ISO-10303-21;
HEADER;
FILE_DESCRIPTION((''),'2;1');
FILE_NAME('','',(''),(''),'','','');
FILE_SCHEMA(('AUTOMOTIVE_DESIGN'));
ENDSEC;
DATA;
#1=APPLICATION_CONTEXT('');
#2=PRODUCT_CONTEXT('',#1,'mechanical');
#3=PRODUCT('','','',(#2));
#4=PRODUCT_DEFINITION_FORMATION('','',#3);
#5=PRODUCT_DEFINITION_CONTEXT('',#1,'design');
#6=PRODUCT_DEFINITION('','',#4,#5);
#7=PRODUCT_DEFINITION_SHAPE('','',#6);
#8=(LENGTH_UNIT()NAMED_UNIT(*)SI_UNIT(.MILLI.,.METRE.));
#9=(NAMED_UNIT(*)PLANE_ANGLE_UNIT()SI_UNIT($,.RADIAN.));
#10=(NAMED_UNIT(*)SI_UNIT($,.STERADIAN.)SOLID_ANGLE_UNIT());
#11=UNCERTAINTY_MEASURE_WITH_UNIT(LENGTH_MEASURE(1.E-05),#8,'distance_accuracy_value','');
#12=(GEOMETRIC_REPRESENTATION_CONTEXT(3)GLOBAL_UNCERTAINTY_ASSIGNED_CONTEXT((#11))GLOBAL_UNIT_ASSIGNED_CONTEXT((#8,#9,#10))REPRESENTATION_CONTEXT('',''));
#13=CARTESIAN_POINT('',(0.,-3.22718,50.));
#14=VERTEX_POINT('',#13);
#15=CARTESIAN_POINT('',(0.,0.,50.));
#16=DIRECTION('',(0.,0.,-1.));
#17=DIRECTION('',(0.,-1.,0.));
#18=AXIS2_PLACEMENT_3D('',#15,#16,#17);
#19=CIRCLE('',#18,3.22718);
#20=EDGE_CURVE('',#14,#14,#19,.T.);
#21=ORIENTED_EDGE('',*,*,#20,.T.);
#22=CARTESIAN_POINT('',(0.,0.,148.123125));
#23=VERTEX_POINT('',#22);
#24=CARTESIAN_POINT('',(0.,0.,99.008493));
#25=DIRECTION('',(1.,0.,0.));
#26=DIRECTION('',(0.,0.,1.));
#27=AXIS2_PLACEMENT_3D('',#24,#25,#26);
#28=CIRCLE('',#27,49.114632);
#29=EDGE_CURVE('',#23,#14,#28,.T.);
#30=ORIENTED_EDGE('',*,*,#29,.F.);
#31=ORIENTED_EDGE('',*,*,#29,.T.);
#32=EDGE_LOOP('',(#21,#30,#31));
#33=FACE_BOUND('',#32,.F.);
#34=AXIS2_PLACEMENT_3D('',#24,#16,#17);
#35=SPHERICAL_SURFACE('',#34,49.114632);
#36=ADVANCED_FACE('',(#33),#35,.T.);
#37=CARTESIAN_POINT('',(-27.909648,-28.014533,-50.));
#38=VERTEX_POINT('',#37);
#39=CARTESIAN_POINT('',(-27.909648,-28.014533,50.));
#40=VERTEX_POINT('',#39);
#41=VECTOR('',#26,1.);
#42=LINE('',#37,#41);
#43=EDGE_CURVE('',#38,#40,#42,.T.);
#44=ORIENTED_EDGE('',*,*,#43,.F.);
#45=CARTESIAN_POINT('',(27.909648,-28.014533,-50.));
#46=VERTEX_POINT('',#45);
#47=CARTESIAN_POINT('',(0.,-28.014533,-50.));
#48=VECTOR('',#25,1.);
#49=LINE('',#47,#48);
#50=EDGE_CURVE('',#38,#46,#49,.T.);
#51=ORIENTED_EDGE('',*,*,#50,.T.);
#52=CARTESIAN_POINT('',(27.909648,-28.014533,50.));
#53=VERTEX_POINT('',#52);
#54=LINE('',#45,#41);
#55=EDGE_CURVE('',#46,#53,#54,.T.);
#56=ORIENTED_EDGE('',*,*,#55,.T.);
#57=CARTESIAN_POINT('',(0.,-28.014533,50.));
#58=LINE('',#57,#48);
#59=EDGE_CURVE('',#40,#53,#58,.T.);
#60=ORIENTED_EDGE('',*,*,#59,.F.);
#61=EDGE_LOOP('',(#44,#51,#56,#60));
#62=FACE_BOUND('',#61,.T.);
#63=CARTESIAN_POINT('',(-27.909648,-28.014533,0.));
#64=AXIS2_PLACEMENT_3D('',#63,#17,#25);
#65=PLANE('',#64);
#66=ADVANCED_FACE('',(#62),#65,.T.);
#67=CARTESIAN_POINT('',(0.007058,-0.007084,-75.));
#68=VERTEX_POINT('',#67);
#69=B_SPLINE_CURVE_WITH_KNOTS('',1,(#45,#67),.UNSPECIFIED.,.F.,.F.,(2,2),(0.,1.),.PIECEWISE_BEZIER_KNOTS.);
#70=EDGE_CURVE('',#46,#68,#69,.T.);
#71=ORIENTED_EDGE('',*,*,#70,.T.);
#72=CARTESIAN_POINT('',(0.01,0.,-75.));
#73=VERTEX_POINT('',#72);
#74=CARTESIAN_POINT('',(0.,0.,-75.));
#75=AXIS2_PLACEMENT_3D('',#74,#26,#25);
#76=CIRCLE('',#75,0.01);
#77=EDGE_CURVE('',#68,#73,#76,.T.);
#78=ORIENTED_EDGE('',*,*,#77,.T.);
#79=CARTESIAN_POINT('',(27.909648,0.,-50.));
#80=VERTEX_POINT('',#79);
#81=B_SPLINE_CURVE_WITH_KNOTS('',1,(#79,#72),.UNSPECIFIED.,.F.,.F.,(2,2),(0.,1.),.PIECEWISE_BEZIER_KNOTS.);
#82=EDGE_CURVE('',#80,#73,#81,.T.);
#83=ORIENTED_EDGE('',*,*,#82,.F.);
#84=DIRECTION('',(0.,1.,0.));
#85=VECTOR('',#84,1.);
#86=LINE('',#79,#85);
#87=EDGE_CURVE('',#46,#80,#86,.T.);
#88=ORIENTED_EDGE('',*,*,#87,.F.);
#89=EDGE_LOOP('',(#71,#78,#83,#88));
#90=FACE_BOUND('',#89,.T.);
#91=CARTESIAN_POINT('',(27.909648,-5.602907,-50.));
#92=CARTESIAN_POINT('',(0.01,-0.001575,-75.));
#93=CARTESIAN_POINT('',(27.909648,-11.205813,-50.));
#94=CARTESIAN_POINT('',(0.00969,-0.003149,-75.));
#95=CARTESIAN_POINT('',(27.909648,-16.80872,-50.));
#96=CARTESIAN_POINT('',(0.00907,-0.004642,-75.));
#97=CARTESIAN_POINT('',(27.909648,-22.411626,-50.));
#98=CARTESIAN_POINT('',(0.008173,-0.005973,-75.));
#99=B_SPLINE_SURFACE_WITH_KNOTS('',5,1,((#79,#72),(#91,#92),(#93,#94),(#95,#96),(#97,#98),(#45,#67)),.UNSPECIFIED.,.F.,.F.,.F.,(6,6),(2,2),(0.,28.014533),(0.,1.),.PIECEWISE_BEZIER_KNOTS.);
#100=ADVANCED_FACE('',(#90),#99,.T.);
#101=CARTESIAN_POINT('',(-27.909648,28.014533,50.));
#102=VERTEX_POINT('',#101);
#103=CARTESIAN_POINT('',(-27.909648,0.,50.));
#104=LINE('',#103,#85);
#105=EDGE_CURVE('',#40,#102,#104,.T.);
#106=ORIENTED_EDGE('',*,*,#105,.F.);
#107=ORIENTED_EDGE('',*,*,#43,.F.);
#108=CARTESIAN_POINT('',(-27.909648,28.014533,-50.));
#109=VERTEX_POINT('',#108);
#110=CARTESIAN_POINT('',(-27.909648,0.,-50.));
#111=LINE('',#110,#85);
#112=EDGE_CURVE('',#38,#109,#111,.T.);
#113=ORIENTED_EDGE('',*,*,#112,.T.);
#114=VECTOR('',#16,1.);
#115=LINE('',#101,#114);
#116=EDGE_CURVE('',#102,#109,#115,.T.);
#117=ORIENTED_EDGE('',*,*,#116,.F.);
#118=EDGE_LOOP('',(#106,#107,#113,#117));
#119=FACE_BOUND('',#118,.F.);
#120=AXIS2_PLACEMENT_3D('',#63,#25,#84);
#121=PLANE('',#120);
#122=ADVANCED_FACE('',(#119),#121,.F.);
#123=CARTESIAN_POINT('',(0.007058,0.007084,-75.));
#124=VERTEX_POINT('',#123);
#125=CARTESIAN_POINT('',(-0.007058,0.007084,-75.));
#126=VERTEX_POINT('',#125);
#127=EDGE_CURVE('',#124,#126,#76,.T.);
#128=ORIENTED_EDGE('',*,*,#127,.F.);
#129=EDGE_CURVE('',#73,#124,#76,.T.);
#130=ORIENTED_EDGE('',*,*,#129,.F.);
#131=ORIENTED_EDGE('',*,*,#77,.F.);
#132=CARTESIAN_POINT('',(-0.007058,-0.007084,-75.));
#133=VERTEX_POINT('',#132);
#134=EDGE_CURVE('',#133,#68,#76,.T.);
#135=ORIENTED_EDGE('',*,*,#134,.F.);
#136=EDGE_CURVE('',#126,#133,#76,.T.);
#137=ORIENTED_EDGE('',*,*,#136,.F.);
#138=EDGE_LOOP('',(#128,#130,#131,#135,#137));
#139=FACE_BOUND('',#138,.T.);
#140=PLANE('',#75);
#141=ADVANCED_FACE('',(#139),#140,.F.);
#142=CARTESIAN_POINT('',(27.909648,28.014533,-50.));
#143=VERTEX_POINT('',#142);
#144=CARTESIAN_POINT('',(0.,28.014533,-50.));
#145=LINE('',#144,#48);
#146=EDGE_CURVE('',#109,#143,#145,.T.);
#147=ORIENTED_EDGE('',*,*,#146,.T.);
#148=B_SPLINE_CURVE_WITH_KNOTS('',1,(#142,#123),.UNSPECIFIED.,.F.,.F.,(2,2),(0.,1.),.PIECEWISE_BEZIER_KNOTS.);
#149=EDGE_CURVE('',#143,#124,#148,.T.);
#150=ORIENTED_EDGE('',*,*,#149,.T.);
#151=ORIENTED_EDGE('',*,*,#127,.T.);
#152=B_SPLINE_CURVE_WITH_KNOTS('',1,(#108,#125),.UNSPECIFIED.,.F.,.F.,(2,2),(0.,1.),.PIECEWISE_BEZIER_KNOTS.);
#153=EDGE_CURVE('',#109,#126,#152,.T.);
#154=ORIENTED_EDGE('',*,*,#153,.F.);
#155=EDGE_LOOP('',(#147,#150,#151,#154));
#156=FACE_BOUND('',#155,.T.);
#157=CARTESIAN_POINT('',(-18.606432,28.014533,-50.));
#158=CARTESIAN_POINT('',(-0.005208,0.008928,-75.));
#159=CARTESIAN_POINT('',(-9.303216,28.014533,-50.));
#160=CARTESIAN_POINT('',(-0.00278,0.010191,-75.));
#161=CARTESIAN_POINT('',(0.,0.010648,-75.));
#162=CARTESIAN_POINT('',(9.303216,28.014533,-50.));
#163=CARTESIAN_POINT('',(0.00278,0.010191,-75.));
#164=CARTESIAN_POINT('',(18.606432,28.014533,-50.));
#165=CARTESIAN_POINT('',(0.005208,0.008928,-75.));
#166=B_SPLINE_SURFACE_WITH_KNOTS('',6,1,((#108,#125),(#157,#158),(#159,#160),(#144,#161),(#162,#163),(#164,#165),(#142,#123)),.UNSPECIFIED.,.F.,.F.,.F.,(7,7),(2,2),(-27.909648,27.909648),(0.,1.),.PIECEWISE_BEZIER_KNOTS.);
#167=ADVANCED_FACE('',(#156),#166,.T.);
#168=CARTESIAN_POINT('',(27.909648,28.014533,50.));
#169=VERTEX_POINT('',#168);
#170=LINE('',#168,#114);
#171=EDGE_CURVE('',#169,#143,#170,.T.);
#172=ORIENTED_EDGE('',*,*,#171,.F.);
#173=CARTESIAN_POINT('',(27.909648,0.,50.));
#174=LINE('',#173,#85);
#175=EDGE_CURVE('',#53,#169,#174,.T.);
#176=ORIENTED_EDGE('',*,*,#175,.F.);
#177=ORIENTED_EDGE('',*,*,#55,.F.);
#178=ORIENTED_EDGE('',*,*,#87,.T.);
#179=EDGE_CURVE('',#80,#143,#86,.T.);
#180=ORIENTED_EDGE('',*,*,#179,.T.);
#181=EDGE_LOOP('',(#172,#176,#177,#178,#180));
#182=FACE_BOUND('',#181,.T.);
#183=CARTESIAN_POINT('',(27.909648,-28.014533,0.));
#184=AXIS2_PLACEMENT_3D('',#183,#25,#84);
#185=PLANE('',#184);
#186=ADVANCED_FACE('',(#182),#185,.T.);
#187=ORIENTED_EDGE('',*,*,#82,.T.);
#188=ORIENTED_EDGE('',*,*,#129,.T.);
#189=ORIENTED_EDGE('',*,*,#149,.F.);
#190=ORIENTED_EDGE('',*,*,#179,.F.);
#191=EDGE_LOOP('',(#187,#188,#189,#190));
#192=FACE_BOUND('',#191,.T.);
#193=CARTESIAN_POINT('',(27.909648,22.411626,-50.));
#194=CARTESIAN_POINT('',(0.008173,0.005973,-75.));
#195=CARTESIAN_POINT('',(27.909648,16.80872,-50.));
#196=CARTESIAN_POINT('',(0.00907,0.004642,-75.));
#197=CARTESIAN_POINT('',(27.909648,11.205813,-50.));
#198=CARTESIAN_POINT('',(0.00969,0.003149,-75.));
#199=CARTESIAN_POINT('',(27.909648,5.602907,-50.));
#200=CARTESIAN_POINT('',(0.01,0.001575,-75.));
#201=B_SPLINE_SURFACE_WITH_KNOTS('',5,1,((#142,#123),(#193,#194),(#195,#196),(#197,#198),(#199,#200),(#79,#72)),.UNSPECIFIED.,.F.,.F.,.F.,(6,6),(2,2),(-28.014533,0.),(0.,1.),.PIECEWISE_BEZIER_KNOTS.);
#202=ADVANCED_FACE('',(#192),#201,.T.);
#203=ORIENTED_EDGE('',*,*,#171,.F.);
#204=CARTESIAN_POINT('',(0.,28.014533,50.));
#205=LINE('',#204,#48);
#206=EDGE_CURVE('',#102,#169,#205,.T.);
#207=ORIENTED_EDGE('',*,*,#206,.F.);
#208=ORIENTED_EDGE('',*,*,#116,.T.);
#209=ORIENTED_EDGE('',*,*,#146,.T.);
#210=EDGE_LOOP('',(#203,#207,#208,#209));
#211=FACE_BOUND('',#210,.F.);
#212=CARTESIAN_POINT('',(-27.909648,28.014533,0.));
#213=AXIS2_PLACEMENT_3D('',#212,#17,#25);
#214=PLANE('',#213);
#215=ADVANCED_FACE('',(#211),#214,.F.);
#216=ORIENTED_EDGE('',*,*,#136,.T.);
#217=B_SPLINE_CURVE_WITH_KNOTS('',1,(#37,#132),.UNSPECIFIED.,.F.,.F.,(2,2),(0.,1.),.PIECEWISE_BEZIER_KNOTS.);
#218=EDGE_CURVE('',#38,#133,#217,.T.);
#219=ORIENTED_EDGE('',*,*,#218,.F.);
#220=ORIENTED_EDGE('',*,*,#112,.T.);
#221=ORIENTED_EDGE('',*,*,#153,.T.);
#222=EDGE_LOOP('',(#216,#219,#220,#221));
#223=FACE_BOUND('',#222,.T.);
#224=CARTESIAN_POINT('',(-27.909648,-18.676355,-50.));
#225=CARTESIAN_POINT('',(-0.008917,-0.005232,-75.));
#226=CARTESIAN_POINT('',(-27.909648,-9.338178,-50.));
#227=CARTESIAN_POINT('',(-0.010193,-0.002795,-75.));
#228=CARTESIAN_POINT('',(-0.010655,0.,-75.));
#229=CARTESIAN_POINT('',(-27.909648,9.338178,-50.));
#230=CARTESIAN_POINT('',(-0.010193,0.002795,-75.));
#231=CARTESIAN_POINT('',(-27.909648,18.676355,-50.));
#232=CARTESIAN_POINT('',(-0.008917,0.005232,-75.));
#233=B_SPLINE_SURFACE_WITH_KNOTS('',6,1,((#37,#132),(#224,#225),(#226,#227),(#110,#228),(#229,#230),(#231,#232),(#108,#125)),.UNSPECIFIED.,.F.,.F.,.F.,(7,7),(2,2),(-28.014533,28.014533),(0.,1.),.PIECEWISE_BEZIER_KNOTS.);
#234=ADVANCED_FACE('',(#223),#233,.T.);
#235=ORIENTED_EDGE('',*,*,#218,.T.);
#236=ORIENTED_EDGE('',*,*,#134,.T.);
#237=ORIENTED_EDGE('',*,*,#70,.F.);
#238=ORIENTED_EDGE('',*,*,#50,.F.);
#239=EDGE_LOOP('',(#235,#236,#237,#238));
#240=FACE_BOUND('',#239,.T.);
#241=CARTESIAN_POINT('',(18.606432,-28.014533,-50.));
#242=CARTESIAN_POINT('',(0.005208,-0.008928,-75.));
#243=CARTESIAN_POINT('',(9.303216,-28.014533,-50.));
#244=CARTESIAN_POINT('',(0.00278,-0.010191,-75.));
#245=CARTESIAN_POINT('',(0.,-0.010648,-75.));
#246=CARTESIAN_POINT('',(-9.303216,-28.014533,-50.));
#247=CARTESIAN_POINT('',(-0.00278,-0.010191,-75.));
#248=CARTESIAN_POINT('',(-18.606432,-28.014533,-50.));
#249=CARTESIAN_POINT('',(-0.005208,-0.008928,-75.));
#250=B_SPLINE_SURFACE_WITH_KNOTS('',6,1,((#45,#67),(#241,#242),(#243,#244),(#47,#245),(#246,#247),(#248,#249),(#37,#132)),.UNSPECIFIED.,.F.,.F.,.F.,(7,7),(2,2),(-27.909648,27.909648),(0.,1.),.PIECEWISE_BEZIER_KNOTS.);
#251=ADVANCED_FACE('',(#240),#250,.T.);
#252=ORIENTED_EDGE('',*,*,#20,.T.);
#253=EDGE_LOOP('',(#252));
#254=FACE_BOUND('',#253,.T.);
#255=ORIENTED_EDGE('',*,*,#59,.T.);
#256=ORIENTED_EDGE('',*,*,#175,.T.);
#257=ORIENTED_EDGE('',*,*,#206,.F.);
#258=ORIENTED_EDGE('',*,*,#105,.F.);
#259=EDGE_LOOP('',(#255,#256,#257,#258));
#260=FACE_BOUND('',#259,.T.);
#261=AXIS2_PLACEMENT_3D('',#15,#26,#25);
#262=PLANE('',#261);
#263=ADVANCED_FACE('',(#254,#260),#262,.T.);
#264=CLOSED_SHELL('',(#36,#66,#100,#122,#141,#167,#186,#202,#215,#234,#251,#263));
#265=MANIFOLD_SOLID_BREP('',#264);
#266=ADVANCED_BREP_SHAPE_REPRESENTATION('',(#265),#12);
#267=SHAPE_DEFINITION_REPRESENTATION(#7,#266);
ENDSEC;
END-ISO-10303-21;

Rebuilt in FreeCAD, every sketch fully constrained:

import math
import FreeCAD as App
import Part
import Sketcher
from FreeCAD import Vector
Q = App.Units.Quantity


def add_polygon(sketch, points):
    """Adds a closed chain of lines whose ends are joined by coincident constraints."""
    first, n = sketch.GeometryCount, len(points)
    for a, b in zip(points, points[1:] + points[:1]):
        sketch.addGeometry(Part.LineSegment(App.Vector(*a, 0), App.Vector(*b, 0)), False)
    for i in range(n):
        sketch.addConstraint(Sketcher.Constraint("Coincident", first + i, 2, first + (i + 1) % n, 1))

doc = App.newDocument("Part")
body = doc.addObject("PartDesign::Body", "Body")

sketch1 = body.newObject("Sketcher::SketchObject", "Sketch")
sketch1.AttachmentSupport = (doc.getObject("XY_Plane"), [""])
sketch1.MapMode = "FlatFace"
add_polygon(sketch1, [(-28, 28), (-28, -28), (28, -28), (28, 28)])
sketch1.addConstraint([
    Sketcher.Constraint("Vertical", 0),
    Sketcher.Constraint("Horizontal", 1),
    Sketcher.Constraint("Vertical", 2),
    Sketcher.Constraint("Horizontal", 3),
    Sketcher.Constraint("Symmetric", 0, 2, 2, 2, -1, 1),
    Sketcher.Constraint("DistanceX", 1, 1, 1, 2, Q("55.819296 mm")),
    Sketcher.Constraint("DistanceY", 0, 2, 0, 1, Q("56.029066 mm")),
])
pad1 = body.newObject("PartDesign::Pad", "Pad")
pad1.Profile = sketch1
pad1.Length = 100
pad1.Midplane = True

sketch2 = body.newObject("Sketcher::SketchObject", "Sketch001")
sketch2.AttachmentSupport = (doc.getObject("YZ_Plane"), [""])
sketch2.MapMode = "FlatFace"
sketch2.addGeometry([
    Part.LineSegment(Vector(0, 50, 0), Vector(0, 148, 0)),
    Part.ArcOfCircle(Part.Circle(Vector(0, 99, 0), Vector(0, 0, 1), 49), math.radians(90), math.radians(270)),
], False)
sketch2.addConstraint([
    Sketcher.Constraint("Coincident", 0, 1, 1, 2),
    Sketcher.Constraint("Coincident", 1, 1, 0, 2),
    Sketcher.Constraint("Vertical", 0),
    Sketcher.Constraint("PointOnObject", 1, 3, -2),
    Sketcher.Constraint("PointOnObject", 0, 1, -2),
    Sketcher.Constraint("Radius", 1, Q("49.114632 mm")),
    Sketcher.Constraint("DistanceY", -1, 1, 0, 1, Q("49.893861 mm")),
])
revolution = body.newObject("PartDesign::Revolution", "Revolution")
revolution.Profile = sketch2
revolution.ReferenceAxis = (sketch2, ["V_Axis"])
revolution.Angle = 360

sketch3 = body.newObject("Sketcher::SketchObject", "Sketch002")
sketch3.AttachmentSupport = (doc.getObject("XY_Plane"), [""])
sketch3.MapMode = "FlatFace"
sketch3.AttachmentOffset = App.Placement(Vector(0, 0, -50), App.Rotation())
add_polygon(sketch3, [(-28, -28), (-28, 28), (28, 28), (28, -28)])
sketch3.addConstraint([
    Sketcher.Constraint("Vertical", 0),
    Sketcher.Constraint("Horizontal", 1),
    Sketcher.Constraint("Vertical", 2),
    Sketcher.Constraint("Horizontal", 3),
    Sketcher.Constraint("Symmetric", 0, 2, 2, 2, -1, 1),
    Sketcher.Constraint("DistanceX", 1, 1, 1, 2, Q("55.819296 mm")),
    Sketcher.Constraint("DistanceY", 0, 1, 0, 2, Q("56.029066 mm")),
])

sketch4 = body.newObject("Sketcher::SketchObject", "Sketch003")
sketch4.AttachmentSupport = (doc.getObject("XY_Plane"), [""])
sketch4.MapMode = "FlatFace"
sketch4.AttachmentOffset = App.Placement(Vector(0, 0, -75), App.Rotation())
sketch4.addGeometry(Part.Circle(Vector(0, 0, 0), Vector(0, 0, 1), 0.01), False)
sketch4.addConstraint([
    Sketcher.Constraint("Coincident", 0, 3, -1, 1),
    Sketcher.Constraint("Diameter", 0, Q("0.02 mm")),
])

additiveloft = body.newObject("PartDesign::AdditiveLoft", "AdditiveLoft")
additiveloft.Profile = sketch3
additiveloft.Sections = [sketch4]

doc.recompute()
